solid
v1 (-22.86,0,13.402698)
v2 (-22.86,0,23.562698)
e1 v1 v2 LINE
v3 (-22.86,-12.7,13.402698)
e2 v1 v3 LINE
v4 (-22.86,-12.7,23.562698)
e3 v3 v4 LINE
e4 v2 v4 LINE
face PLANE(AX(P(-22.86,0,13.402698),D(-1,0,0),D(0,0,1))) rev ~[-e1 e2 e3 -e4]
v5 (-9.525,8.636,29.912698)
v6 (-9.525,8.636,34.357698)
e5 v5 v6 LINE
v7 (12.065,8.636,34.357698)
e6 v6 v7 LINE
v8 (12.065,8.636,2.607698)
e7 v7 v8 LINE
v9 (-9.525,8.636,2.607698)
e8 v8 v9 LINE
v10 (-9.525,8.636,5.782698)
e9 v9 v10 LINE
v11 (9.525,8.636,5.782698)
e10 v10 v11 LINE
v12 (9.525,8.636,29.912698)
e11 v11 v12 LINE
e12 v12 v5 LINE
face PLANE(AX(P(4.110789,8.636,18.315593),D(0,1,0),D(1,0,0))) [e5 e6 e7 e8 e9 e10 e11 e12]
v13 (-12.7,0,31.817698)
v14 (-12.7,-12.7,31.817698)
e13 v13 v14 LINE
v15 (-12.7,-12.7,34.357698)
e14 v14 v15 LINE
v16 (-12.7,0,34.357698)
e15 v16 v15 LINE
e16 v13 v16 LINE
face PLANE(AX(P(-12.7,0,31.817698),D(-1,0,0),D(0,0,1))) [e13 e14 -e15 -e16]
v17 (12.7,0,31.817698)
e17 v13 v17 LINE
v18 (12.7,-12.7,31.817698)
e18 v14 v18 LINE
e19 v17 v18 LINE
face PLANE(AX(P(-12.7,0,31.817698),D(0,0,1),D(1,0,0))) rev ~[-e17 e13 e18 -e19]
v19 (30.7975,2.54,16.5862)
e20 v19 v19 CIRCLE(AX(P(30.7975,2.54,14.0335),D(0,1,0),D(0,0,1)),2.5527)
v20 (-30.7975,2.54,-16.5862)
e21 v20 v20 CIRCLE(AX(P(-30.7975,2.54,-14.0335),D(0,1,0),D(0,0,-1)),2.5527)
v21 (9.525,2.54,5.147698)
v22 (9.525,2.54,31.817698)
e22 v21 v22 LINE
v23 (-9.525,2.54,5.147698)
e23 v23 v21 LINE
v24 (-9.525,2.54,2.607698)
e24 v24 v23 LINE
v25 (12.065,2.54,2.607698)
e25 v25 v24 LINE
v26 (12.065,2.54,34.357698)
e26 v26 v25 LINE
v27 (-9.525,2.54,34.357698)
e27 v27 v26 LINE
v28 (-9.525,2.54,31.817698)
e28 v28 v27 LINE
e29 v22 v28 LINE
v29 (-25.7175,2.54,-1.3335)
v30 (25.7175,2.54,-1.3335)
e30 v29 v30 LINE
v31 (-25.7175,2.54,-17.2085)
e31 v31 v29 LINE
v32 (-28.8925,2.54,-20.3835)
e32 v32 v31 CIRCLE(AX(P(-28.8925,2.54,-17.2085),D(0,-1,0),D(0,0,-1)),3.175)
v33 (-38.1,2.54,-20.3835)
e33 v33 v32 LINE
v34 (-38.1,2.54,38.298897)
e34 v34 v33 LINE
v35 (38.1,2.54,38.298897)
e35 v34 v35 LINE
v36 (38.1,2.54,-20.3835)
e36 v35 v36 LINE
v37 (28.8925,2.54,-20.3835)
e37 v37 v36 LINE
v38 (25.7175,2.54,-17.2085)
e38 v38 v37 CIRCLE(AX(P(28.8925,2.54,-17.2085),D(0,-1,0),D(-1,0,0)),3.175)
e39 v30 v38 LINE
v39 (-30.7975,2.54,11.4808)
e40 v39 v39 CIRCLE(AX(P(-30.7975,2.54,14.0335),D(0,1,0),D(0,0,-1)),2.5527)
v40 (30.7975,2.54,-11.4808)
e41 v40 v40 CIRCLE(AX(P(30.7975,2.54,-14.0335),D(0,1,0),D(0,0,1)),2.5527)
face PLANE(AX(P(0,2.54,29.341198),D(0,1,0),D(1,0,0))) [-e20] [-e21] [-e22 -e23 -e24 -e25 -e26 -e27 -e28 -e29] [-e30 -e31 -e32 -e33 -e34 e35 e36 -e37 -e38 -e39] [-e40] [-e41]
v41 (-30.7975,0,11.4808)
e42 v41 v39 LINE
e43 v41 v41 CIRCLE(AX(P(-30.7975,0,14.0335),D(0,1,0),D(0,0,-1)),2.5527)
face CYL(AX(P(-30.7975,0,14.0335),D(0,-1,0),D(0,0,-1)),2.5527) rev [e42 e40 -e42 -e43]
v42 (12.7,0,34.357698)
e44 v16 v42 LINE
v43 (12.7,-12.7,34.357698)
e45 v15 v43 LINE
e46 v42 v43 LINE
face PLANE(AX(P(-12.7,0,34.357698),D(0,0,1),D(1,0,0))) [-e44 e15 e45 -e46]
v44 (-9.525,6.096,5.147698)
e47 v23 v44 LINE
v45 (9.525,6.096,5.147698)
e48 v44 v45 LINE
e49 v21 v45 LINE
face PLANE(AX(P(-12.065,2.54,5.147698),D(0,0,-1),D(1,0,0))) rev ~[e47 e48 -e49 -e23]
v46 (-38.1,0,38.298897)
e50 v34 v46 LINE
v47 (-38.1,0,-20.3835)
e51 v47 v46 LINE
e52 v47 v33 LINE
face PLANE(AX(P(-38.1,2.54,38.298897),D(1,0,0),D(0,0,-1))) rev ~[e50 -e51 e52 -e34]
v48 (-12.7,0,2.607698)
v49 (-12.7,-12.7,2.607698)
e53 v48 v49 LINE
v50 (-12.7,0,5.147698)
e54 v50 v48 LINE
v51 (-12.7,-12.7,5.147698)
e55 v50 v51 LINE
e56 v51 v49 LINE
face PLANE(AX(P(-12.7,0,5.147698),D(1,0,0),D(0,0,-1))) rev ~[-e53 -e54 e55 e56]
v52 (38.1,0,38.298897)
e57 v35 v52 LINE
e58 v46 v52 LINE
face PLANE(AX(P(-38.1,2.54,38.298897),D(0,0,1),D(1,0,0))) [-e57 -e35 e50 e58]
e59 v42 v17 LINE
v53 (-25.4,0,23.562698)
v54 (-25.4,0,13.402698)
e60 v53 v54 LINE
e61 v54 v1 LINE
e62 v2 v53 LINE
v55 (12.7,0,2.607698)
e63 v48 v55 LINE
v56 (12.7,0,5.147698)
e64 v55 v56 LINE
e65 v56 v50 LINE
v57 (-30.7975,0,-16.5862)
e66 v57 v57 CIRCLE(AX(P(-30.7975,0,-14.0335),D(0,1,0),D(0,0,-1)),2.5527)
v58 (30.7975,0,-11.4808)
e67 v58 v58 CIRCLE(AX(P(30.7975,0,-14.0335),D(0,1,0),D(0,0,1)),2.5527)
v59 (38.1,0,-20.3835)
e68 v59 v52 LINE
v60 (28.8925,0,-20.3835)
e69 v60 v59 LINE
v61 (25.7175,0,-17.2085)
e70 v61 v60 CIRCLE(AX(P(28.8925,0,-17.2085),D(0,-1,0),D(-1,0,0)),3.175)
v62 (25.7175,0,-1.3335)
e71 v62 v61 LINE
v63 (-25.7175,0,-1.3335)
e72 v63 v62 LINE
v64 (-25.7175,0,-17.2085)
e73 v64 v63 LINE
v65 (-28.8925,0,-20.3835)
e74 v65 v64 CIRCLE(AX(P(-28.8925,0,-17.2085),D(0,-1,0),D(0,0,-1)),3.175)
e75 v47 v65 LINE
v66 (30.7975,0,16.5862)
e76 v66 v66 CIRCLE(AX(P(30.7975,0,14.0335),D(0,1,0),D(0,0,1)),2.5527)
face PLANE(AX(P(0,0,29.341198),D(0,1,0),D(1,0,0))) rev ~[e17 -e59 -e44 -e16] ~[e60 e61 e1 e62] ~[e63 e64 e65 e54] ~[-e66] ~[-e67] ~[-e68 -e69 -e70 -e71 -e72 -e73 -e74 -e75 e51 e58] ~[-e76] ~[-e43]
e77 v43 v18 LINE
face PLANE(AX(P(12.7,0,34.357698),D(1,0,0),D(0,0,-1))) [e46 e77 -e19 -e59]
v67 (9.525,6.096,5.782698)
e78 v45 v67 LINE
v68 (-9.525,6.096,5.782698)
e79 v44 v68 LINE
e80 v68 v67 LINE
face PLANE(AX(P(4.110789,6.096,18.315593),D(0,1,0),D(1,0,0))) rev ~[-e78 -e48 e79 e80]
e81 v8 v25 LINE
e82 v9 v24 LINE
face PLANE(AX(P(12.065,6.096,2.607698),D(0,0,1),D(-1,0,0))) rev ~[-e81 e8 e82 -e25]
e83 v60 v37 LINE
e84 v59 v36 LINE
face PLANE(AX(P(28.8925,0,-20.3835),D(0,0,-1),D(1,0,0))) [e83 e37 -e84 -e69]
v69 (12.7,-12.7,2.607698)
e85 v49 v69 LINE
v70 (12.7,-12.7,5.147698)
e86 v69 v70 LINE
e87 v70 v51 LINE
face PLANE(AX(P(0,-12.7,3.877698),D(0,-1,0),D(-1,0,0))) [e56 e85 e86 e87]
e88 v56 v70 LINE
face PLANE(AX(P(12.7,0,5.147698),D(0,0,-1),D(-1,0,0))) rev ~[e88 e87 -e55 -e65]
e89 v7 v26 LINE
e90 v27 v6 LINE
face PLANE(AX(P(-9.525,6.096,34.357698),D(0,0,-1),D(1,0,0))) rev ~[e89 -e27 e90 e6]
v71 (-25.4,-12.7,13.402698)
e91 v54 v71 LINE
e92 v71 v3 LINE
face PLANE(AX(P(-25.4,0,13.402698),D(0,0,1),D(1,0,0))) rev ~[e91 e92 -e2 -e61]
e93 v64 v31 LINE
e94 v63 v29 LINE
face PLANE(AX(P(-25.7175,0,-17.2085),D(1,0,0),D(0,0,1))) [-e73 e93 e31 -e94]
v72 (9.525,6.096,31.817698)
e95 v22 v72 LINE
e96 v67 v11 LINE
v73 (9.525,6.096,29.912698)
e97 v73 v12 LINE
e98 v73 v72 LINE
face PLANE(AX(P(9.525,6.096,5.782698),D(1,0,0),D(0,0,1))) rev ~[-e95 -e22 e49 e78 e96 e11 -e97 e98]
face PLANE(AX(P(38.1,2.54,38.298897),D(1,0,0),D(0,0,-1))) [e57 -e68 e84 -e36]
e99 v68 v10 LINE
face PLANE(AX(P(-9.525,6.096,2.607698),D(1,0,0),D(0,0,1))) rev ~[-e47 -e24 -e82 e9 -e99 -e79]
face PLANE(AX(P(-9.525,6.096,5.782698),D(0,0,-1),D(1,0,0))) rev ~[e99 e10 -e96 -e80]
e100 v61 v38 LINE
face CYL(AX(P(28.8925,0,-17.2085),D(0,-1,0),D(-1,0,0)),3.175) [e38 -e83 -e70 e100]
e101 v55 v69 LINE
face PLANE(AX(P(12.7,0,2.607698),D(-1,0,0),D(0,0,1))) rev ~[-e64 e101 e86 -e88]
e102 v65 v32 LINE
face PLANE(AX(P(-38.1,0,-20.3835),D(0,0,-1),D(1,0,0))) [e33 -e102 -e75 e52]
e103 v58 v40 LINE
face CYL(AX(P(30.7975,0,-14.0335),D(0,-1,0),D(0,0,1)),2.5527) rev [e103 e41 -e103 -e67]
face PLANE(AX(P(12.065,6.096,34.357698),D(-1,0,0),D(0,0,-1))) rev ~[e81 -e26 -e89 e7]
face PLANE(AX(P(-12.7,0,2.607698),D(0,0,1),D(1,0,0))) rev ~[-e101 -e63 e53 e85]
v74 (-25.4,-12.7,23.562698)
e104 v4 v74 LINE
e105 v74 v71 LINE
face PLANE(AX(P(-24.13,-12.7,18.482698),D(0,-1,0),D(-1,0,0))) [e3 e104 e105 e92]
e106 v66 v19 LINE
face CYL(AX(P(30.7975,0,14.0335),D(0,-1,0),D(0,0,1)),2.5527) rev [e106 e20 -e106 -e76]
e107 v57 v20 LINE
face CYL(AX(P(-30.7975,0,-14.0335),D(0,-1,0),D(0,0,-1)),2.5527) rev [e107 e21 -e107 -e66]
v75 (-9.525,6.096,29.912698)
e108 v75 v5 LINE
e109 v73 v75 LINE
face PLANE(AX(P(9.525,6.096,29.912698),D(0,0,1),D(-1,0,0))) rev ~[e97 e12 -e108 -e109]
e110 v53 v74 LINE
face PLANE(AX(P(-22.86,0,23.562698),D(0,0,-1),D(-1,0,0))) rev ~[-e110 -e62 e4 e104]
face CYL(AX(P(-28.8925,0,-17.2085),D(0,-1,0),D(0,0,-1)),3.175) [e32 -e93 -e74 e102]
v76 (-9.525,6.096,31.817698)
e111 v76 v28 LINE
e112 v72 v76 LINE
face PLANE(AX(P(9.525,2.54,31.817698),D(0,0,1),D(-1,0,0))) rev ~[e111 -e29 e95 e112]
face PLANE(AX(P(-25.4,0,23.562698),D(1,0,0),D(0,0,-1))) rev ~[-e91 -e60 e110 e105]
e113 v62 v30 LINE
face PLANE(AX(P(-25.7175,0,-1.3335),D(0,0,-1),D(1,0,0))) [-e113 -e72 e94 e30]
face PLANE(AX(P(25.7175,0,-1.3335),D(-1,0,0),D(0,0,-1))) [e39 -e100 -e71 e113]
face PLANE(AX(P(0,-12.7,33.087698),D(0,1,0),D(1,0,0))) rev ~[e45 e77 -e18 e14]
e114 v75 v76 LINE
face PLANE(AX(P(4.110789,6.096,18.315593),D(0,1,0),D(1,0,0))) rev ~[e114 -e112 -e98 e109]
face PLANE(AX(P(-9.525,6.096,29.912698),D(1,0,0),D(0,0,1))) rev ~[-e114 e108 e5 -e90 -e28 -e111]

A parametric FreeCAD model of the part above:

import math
import FreeCAD as App
import Part
import Sketcher
from FreeCAD import Vector
Q = App.Units.Quantity

doc = App.newDocument("Part")
body = doc.addObject("PartDesign::Body", "Body")

sketch1 = body.newObject("Sketcher::SketchObject", "Sketch")
sketch1.AttachmentSupport = (doc.getObject("XZ_Plane"), [""])
sketch1.MapMode = "FlatFace"
sketch1.addGeometry([
    Part.LineSegment(Vector(-38.1, 20.4, 0), Vector(38.1, 20.4, 0)),
    Part.LineSegment(Vector(38.1, 20.4, 0), Vector(38.1, -20.4, 0)),
    Part.LineSegment(Vector(38.1, -20.4, 0), Vector(28.9, -20.4, 0)),
    Part.ArcOfCircle(Part.Circle(Vector(28.9, -17.2, 0), Vector(0, 0, 1), 3.2), math.radians(-180), math.radians(-90)),
    Part.LineSegment(Vector(25.7, -17.2, 0), Vector(25.7, -1.3, 0)),
    Part.LineSegment(Vector(25.7, -1.3, 0), Vector(-25.7, -1.3, 0)),
    Part.LineSegment(Vector(-25.7, -1.3, 0), Vector(-25.7, -17.2, 0)),
    Part.ArcOfCircle(Part.Circle(Vector(-28.9, -17.2, 0), Vector(0, 0, 1), 3.2), math.radians(-90), math.radians(0)),
    Part.LineSegment(Vector(-28.9, -20.4, 0), Vector(-38.1, -20.4, 0)),
    Part.LineSegment(Vector(-38.1, -20.4, 0), Vector(-38.1, 20.4, 0)),
    Part.Circle(Vector(30.8, 14, 0), Vector(0, 0, 1), 2.6),
    Part.Circle(Vector(-30.8, 14, 0), Vector(0, 0, 1), 2.6),
    Part.Circle(Vector(30.8, -14, 0), Vector(0, 0, 1), 2.6),
    Part.Circle(Vector(-30.8, -14, 0), Vector(0, 0, 1), 2.6),
], False)
sketch1.addConstraint([
    Sketcher.Constraint("Coincident", 0, 2, 1, 1),
    Sketcher.Constraint("Coincident", 1, 2, 2, 1),
    Sketcher.Constraint("Tangent", 2, 2, 3, 2),
    Sketcher.Constraint("Tangent", 3, 1, 4, 1),
    Sketcher.Constraint("Coincident", 4, 2, 5, 1),
    Sketcher.Constraint("Coincident", 5, 2, 6, 1),
    Sketcher.Constraint("Tangent", 6, 2, 7, 2),
    Sketcher.Constraint("Tangent", 7, 1, 8, 1),
    Sketcher.Constraint("Coincident", 8, 2, 9, 1),
    Sketcher.Constraint("Coincident", 9, 2, 0, 1),
    Sketcher.Constraint("Horizontal", 0),
    Sketcher.Constraint("Vertical", 1),
    Sketcher.Constraint("Horizontal", 2),
    Sketcher.Constraint("Vertical", 4),
    Sketcher.Constraint("Horizontal", 5),
    Sketcher.Constraint("Vertical", 6),
    Sketcher.Constraint("Horizontal", 8),
    Sketcher.Constraint("Vertical", 9),
    Sketcher.Constraint("Equal", 3, 7),
    Sketcher.Constraint("Equal", 10, 11),
    Sketcher.Constraint("Equal", 11, 12),
    Sketcher.Constraint("Equal", 12, 13),
    Sketcher.Constraint("Symmetric", 11, 3, 12, 3, -1, 1),
    Sketcher.Constraint("Symmetric", 10, 3, 13, 3, -1, 1),
    Sketcher.Constraint("Symmetric", 0, 2, 8, 2, -1, 1),
    Sketcher.Constraint("Symmetric", 3, 3, 7, 3, -2),
    Sketcher.Constraint("Symmetric", 10, 3, 11, 3, -2),
    Sketcher.Constraint("DistanceX", 0, 1, 0, 2, Q("3 in")),
    Sketcher.Constraint("Diameter", 10, Q("0.201 in")),
    Sketcher.Constraint("Radius", 3, Q("0.125 in")),
    Sketcher.Constraint("DistanceX", 3, 1, 12, 3, Q("0.2 in")),
    Sketcher.Constraint("DistanceY", 12, 3, 4, 2, Q("0.5 in")),
    Sketcher.Constraint("DistanceX", 5, 2, 5, 1, Q("2.025 in")),
    Sketcher.Constraint("DistanceY", 1, 2, 1, 1, Q("1.605 in")),
    Sketcher.Constraint("DistanceY", 4, 1, 4, 2, Q("0.625 in")),
])
pad1 = body.newObject("PartDesign::Pad", "Pad")
pad1.Profile = sketch1
pad1.Length = Q("0.1 in")
pad1.Reversed = True

sketch2 = body.newObject("Sketcher::SketchObject", "Sketch001")
sketch2.AttachmentSupport = (doc.getObject("XZ_Plane"), [""])
sketch2.MapMode = "FlatFace"
sketch2.AttachmentOffset = App.Placement(Vector(0, 0, -0.1 * 25.4), App.Rotation())
sketch2.addGeometry([
    Part.LineSegment(Vector(-38, 20, 0), Vector(-38, 38, 0)),
    Part.LineSegment(Vector(-38, 38, 0), Vector(38, 38, 0)),
    Part.LineSegment(Vector(38, 38, 0), Vector(38, 20, 0)),
    Part.LineSegment(Vector(38, 20, 0), Vector(-38, 20, 0)),
], False)
sketch2.addConstraint([
    Sketcher.Constraint("Coincident", 0, 2, 1, 1),
    Sketcher.Constraint("Coincident", 1, 2, 2, 1),
    Sketcher.Constraint("Coincident", 2, 2, 3, 1),
    Sketcher.Constraint("Coincident", 3, 2, 0, 1),
    Sketcher.Constraint("Vertical", 0),
    Sketcher.Constraint("Horizontal", 1),
    Sketcher.Constraint("Vertical", 2),
    Sketcher.Constraint("Horizontal", 3),
    Sketcher.Constraint("DistanceX", 1, 1, 1, 2, Q("3 in")),
    Sketcher.Constraint("DistanceX", 0, 2, -1, 1, Q("1.5 in")),
    Sketcher.Constraint("DistanceY", -1, 1, 2, 2, Q("0.8025 in")),
    Sketcher.Constraint("DistanceY", 0, 1, 0, 2, Q("17.915397 mm")),
])
pad2 = body.newObject("PartDesign::Pad", "Pad001")
pad2.Profile = sketch2
pad2.Length = Q("0.1 in")

sketch3 = body.newObject("Sketcher::SketchObject", "Sketch002")
sketch3.AttachmentSupport = (doc.getObject("XZ_Plane"), [""])
sketch3.MapMode = "FlatFace"
sketch3.AttachmentOffset = App.Placement(Vector(0, 0, -0.1 * 25.4), App.Rotation())
sketch3.addGeometry([
    Part.LineSegment(Vector(-12.1, 2.6, 0), Vector(-12.1, 5.1, 0)),
    Part.LineSegment(Vector(-12.1, 5.1, 0), Vector(9.5, 5.1, 0)),
    Part.LineSegment(Vector(9.5, 5.1, 0), Vector(9.5, 31.8, 0)),
    Part.LineSegment(Vector(9.5, 31.8, 0), Vector(-12.1, 31.8, 0)),
    Part.LineSegment(Vector(-12.1, 31.8, 0), Vector(-12.1, 34.4, 0)),
    Part.LineSegment(Vector(-12.1, 34.4, 0), Vector(12.1, 34.4, 0)),
    Part.LineSegment(Vector(12.1, 34.4, 0), Vector(12.1, 2.6, 0)),
    Part.LineSegment(Vector(12.1, 2.6, 0), Vector(-12.1, 2.6, 0)),
], False)
sketch3.addConstraint([
    Sketcher.Constraint("Coincident", 0, 2, 1, 1),
    Sketcher.Constraint("Coincident", 1, 2, 2, 1),
    Sketcher.Constraint("Coincident", 2, 2, 3, 1),
    Sketcher.Constraint("Coincident", 3, 2, 4, 1),
    Sketcher.Constraint("Coincident", 4, 2, 5, 1),
    Sketcher.Constraint("Coincident", 5, 2, 6, 1),
    Sketcher.Constraint("Coincident", 6, 2, 7, 1),
    Sketcher.Constraint("Coincident", 7, 2, 0, 1),
    Sketcher.Constraint("Vertical", 0),
    Sketcher.Constraint("Horizontal", 1),
    Sketcher.Constraint("Vertical", 2),
    Sketcher.Constraint("Horizontal", 3),
    Sketcher.Constraint("Vertical", 4),
    Sketcher.Constraint("Horizontal", 5),
    Sketcher.Constraint("Vertical", 6),
    Sketcher.Constraint("Horizontal", 7),
    Sketcher.Constraint("Vertical", 0, 2, 3, 2),
    Sketcher.Constraint("Equal", 0, 4),
    Sketcher.Constraint("DistanceY", 0, 1, 0, 2, Q("0.1 in")),
    Sketcher.Constraint("DistanceX", 1, 1, 1, 2, Q("0.85 in")),
    Sketcher.Constraint("DistanceX", 5, 1, 5, 2, Q("0.95 in")),
    Sketcher.Constraint("DistanceY", 2, 1, 2, 2, Q("1.05 in")),
    Sketcher.Constraint("DistanceX", 0, 2, -1, 1, Q("0.475 in")),
    Sketcher.Constraint("DistanceY", -1, 1, 0, 2, Q("5.147698 mm")),
])
pad3 = body.newObject("PartDesign::Pad", "Pad002")
pad3.Profile = sketch3
pad3.Length = Q("0.14 in")
pad3.Reversed = True

sketch4 = body.newObject("Sketcher::SketchObject", "Sketch003")
sketch4.AttachmentSupport = (doc.getObject("YZ_Plane"), [""])
sketch4.MapMode = "FlatFace"
sketch4.AttachmentOffset = App.Placement(Vector(0, 0, -0.475 * 25.4), App.Rotation())
sketch4.addGeometry([
    Part.LineSegment(Vector(6.1, 2.6, 0), Vector(2.5, 2.6, 0)),
    Part.LineSegment(Vector(2.5, 2.6, 0), Vector(2.5, 34.4, 0)),
    Part.LineSegment(Vector(2.5, 34.4, 0), Vector(6.1, 34.4, 0)),
    Part.LineSegment(Vector(6.1, 34.4, 0), Vector(6.1, 2.6, 0)),
], False)
sketch4.addConstraint([
    Sketcher.Constraint("Coincident", 0, 2, 1, 1),
    Sketcher.Constraint("Coincident", 1, 2, 2, 1),
    Sketcher.Constraint("Coincident", 2, 2, 3, 1),
    Sketcher.Constraint("Coincident", 3, 2, 0, 1),
    Sketcher.Constraint("Horizontal", 0),
    Sketcher.Constraint("Vertical", 1),
    Sketcher.Constraint("Horizontal", 2),
    Sketcher.Constraint("Vertical", 3),
    Sketcher.Constraint("DistanceX", 0, 2, 0, 1, Q("0.14 in")),
    Sketcher.Constraint("DistanceY", 1, 1, 1, 2, Q("1.25 in")),
    Sketcher.Constraint("DistanceX", -1, 1, 0, 2, Q("0.1 in")),
    Sketcher.Constraint("DistanceY", -1, 1, 0, 2, Q("2.607698 mm")),
])
pocket1 = body.newObject("PartDesign::Pocket", "Pocket")
pocket1.Profile = sketch4
pocket1.Length = Q("0.1 in")
pocket1.Reversed = True

sketch5 = body.newObject("Sketcher::SketchObject", "Sketch004")
sketch5.AttachmentSupport = (doc.getObject("XZ_Plane"), [""])
sketch5.MapMode = "FlatFace"
sketch5.AttachmentOffset = App.Placement(Vector(0, 0, -0.24 * 25.4), App.Rotation())
sketch5.addGeometry([
    Part.LineSegment(Vector(-9.5, 2.6, 0), Vector(-9.5, 5.8, 0)),
    Part.LineSegment(Vector(-9.5, 5.8, 0), Vector(9.5, 5.8, 0)),
    Part.LineSegment(Vector(9.5, 5.8, 0), Vector(9.5, 29.9, 0)),
    Part.LineSegment(Vector(9.5, 29.9, 0), Vector(-9.5, 29.9, 0)),
    Part.LineSegment(Vector(-9.5, 29.9, 0), Vector(-9.5, 34.4, 0)),
    Part.LineSegment(Vector(-9.5, 34.4, 0), Vector(12.1, 34.4, 0)),
    Part.LineSegment(Vector(12.1, 34.4, 0), Vector(12.1, 2.6, 0)),
    Part.LineSegment(Vector(12.1, 2.6, 0), Vector(-9.5, 2.6, 0)),
], False)
sketch5.addConstraint([
    Sketcher.Constraint("Coincident", 0, 2, 1, 1),
    Sketcher.Constraint("Coincident", 1, 2, 2, 1),
    Sketcher.Constraint("Coincident", 2, 2, 3, 1),
    Sketcher.Constraint("Coincident", 3, 2, 4, 1),
    Sketcher.Constraint("Coincident", 4, 2, 5, 1),
    Sketcher.Constraint("Coincident", 5, 2, 6, 1),
    Sketcher.Constraint("Coincident", 6, 2, 7, 1),
    Sketcher.Constraint("Coincident", 7, 2, 0, 1),
    Sketcher.Constraint("Vertical", 0),
    Sketcher.Constraint("Horizontal", 1),
    Sketcher.Constraint("Vertical", 2),
    Sketcher.Constraint("Horizontal", 3),
    Sketcher.Constraint("Vertical", 4),
    Sketcher.Constraint("Horizontal", 5),
    Sketcher.Constraint("Vertical", 6),
    Sketcher.Constraint("Horizontal", 7),
    Sketcher.Constraint("Vertical", 0, 2, 3, 2),
    Sketcher.Constraint("DistanceX", 1, 1, 1, 2, Q("0.75 in")),
    Sketcher.Constraint("DistanceX", 5, 1, 5, 2, Q("0.85 in")),
    Sketcher.Constraint("DistanceY", 2, 1, 2, 2, Q("0.95 in")),
    Sketcher.Constraint("DistanceY", 6, 2, 6, 1, Q("1.25 in")),
    Sketcher.Constraint("DistanceY", 0, 1, 0, 2, Q("0.125 in")),
    Sketcher.Constraint("DistanceX", 0, 2, -1, 1, Q("0.375 in")),
    Sketcher.Constraint("DistanceY", -1, 1, 0, 2, Q("5.782698 mm")),
])
pad4 = body.newObject("PartDesign::Pad", "Pad003")
pad4.Profile = sketch5
pad4.Length = Q("0.1 in")
pad4.Reversed = True

sketch6 = body.newObject("Sketcher::SketchObject", "Sketch005")
sketch6.AttachmentSupport = (doc.getObject("XZ_Plane"), [""])
sketch6.MapMode = "FlatFace"
sketch6.addGeometry([
    Part.LineSegment(Vector(-22.9, 13.4, 0), Vector(-22.9, 23.6, 0)),
    Part.LineSegment(Vector(-22.9, 23.6, 0), Vector(-25.4, 23.6, 0)),
    Part.LineSegment(Vector(-25.4, 23.6, 0), Vector(-25.4, 13.4, 0)),
    Part.LineSegment(Vector(-25.4, 13.4, 0), Vector(-22.9, 13.4, 0)),
    Part.LineSegment(Vector(12.7, 2.6, 0), Vector(12.7, 5.1, 0)),
    Part.LineSegment(Vector(12.7, 5.1, 0), Vector(-12.7, 5.1, 0)),
    Part.LineSegment(Vector(-12.7, 5.1, 0), Vector(-12.7, 2.6, 0)),
    Part.LineSegment(Vector(-12.7, 2.6, 0), Vector(12.7, 2.6, 0)),
    Part.LineSegment(Vector(-12.7, 31.8, 0), Vector(12.7, 31.8, 0)),
    Part.LineSegment(Vector(12.7, 31.8, 0), Vector(12.7, 34.4, 0)),
    Part.LineSegment(Vector(12.7, 34.4, 0), Vector(-12.7, 34.4, 0)),
    Part.LineSegment(Vector(-12.7, 34.4, 0), Vector(-12.7, 31.8, 0)),
], False)
sketch6.addConstraint([
    Sketcher.Constraint("Coincident", 0, 2, 1, 1),
    Sketcher.Constraint("Coincident", 1, 2, 2, 1),
    Sketcher.Constraint("Coincident", 2, 2, 3, 1),
    Sketcher.Constraint("Coincident", 3, 2, 0, 1),
    Sketcher.Constraint("Coincident", 4, 2, 5, 1),
    Sketcher.Constraint("Coincident", 5, 2, 6, 1),
    Sketcher.Constraint("Coincident", 6, 2, 7, 1),
    Sketcher.Constraint("Coincident", 7, 2, 4, 1),
    Sketcher.Constraint("Coincident", 8, 2, 9, 1),
    Sketcher.Constraint("Coincident", 9, 2, 10, 1),
    Sketcher.Constraint("Coincident", 10, 2, 11, 1),
    Sketcher.Constraint("Coincident", 11, 2, 8, 1),
    Sketcher.Constraint("Vertical", 0),
    Sketcher.Constraint("Horizontal", 1),
    Sketcher.Constraint("Vertical", 2),
    Sketcher.Constraint("Horizontal", 3),
    Sketcher.Constraint("Vertical", 4),
    Sketcher.Constraint("Horizontal", 5),
    Sketcher.Constraint("Vertical", 6),
    Sketcher.Constraint("Horizontal", 7),
    Sketcher.Constraint("Horizontal", 8),
    Sketcher.Constraint("Vertical", 9),
    Sketcher.Constraint("Horizontal", 10),
    Sketcher.Constraint("Vertical", 11),
    Sketcher.Constraint("Vertical", 7, 2, 8, 2),
    Sketcher.Constraint("Vertical", 6, 2, 10, 2),
    Sketcher.Constraint("Equal", 3, 4),
    Sketcher.Constraint("Equal", 6, 9),
    Sketcher.Constraint("DistanceX", 5, 2, 5, 1, Q("1 in")),
    Sketcher.Constraint("DistanceX", 1, 2, 1, 1, Q("0.1 in")),
    Sketcher.Constraint("DistanceY", 0, 1, 0, 2, Q("0.4 in")),
    Sketcher.Constraint("DistanceX", 1, 2, -1, 1, Q("1 in")),
    Sketcher.Constraint("DistanceX", -1, 1, 4, 2, Q("0.5 in")),
    Sketcher.Constraint("DistanceY", 4, 2, 8, 2, Q("1.05 in")),
    Sketcher.Constraint("DistanceY", 4, 2, 3, 2, Q("0.325 in")),
    Sketcher.Constraint("DistanceY", -1, 1, 0, 2, Q("23.562698 mm")),
])
pad5 = body.newObject("PartDesign::Pad", "Pad004")
pad5.Profile = sketch6
pad5.Length = Q("0.5 in")

doc.recompute()
